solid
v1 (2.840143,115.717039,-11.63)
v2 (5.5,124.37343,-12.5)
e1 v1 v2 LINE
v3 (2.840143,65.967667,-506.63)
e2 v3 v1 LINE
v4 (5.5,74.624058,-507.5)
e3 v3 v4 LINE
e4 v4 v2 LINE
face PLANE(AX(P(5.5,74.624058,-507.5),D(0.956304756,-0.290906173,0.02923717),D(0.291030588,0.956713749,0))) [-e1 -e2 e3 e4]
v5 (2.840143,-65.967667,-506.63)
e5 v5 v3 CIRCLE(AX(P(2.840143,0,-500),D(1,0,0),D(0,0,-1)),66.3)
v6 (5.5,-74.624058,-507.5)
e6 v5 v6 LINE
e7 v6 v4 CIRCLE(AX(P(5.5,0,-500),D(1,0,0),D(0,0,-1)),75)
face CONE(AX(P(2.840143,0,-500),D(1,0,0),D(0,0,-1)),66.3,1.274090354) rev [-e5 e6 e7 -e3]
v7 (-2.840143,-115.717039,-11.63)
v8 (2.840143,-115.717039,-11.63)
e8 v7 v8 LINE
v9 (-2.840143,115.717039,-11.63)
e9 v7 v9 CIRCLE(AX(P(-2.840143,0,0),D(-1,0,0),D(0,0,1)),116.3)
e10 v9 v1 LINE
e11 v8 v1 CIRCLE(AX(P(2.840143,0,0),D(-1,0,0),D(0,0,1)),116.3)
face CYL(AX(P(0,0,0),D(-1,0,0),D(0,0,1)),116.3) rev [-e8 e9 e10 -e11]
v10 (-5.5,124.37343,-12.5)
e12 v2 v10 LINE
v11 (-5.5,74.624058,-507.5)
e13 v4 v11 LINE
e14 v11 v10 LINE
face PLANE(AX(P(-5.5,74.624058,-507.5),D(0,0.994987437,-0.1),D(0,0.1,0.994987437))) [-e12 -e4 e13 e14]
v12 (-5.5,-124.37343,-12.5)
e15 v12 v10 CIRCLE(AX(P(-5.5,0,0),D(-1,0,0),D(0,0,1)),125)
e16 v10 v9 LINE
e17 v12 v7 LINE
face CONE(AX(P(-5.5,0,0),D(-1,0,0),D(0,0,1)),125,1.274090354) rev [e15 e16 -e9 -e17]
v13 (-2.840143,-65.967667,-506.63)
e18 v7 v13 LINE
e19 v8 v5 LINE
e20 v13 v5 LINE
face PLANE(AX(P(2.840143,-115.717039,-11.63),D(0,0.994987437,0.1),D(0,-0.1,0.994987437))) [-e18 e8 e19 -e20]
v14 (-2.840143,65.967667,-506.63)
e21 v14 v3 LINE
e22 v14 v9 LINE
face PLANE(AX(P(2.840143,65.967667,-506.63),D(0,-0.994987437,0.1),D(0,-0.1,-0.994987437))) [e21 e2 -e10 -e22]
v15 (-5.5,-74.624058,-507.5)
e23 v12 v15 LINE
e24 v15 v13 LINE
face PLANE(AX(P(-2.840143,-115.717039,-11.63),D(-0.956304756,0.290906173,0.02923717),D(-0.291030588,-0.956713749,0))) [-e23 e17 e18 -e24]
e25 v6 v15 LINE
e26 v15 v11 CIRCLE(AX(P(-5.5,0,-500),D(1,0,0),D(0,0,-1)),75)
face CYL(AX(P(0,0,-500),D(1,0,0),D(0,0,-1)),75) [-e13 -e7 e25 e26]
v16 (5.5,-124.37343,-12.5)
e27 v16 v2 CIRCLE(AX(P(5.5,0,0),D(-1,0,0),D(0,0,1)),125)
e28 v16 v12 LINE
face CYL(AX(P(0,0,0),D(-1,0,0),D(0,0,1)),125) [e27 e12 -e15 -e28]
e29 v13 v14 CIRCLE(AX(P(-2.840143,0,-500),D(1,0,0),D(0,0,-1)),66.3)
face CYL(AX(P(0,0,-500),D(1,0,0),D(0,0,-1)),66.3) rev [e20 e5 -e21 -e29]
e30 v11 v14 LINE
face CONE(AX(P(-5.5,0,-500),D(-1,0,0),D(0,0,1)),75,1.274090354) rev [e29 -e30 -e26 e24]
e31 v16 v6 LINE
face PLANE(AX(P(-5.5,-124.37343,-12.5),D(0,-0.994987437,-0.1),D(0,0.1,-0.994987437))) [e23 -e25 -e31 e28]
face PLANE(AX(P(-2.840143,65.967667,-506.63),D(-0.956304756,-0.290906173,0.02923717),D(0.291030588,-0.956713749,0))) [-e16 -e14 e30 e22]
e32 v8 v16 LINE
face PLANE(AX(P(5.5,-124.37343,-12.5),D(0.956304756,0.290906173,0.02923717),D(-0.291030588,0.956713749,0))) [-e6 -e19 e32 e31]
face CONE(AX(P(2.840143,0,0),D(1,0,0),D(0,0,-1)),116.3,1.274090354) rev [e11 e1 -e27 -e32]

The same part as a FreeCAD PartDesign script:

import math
import FreeCAD as App
import Part
import Sketcher
from FreeCAD import Vector
Q = App.Units.Quantity


def add_polygon(sketch, points):
    """Adds a closed chain of lines whose ends are joined by coincident constraints."""
    first, n = sketch.GeometryCount, len(points)
    for a, b in zip(points, points[1:] + points[:1]):
        sketch.addGeometry(Part.LineSegment(App.Vector(*a, 0), App.Vector(*b, 0)), False)
    for i in range(n):
        sketch.addConstraint(Sketcher.Constraint("Coincident", first + i, 2, first + (i + 1) % n, 1))

doc = App.newDocument("Part")
body = doc.addObject("PartDesign::Body", "Body")

# Sketch on XY plane
sketch1 = body.newObject("Sketcher::SketchObject", "Sketch")
sketch1.AttachmentSupport = (doc.getObject("XY_Plane"), [""])
sketch1.MapMode = "FlatFace"
add_polygon(sketch1, [(6, 125), (-6, 125), (-3, 116), (3, 116)])  # lines 0-3
sketch1.addConstraint(Sketcher.Constraint("Horizontal", 0))
sketch1.addConstraint(Sketcher.Constraint("Horizontal", 2))
sketch1.addConstraint(Sketcher.Constraint("Equal", 1, 3))
sketch1.addConstraint(Sketcher.Constraint("DistanceX", 0, 2, 0, 1, Q("11 mm")))
sketch1.addConstraint(Sketcher.Constraint("Angle", 1, Q("-73 deg")))
sketch1.addConstraint(Sketcher.Constraint("DistanceY", -1, 1, 0, 2, Q("125 mm")))
sketch1.addConstraint(Sketcher.Constraint("DistanceX", 0, 2, -1, 1, Q("5.5 mm")))
sketch1.addConstraint(Sketcher.Constraint("DistanceY", -1, 1, 1, 2, Q("116.3 mm")))

# Sketch on YZ plane
sketch2 = body.newObject("Sketcher::SketchObject", "Sketch001")
sketch2.AttachmentSupport = (doc.getObject("YZ_Plane"), [""])
sketch2.MapMode = "FlatFace"
sketch2.addGeometry(Part.LineSegment(Vector(124, -12, 0), Vector(75, -508, 0)), False)
sketch2.addGeometry(Part.ArcOfCircle(Part.Circle(Vector(0, -500, 0), Vector(0, 0, 1), 75), math.radians(-174), math.radians(-6)), False)
sketch2.addGeometry(Part.LineSegment(Vector(-75, -508, 0), Vector(-124, -12, 0)), False)
sketch2.addGeometry(Part.ArcOfCircle(Part.Circle(Vector(0, 0, 0), Vector(0, 0, 1), 125), math.radians(-6), math.radians(186)), False)
sketch2.addConstraint(Sketcher.Constraint("Tangent", 0, 2, 1, 2))
sketch2.addConstraint(Sketcher.Constraint("Tangent", 1, 1, 2, 1))
sketch2.addConstraint(Sketcher.Constraint("Tangent", 2, 2, 3, 2))
sketch2.addConstraint(Sketcher.Constraint("Tangent", 3, 1, 0, 1))
sketch2.addConstraint(Sketcher.Constraint("Coincident", 3, 3, -1, 1))
sketch2.addConstraint(Sketcher.Constraint("PointOnObject", 1, 3, -2))
sketch2.addConstraint(Sketcher.Constraint("Radius", 1, Q("75 mm")))
sketch2.addConstraint(Sketcher.Constraint("Radius", 3, Q("125 mm")))
sketch2.addConstraint(Sketcher.Constraint("DistanceY", 1, 3, -1, 1, Q("500 mm")))
doc.recompute()

additivepipe = body.newObject("PartDesign::AdditivePipe", "AdditivePipe")
additivepipe.Profile = sketch1
additivepipe.Spine = (sketch2, ["Edge1", "Edge2", "Edge3", "Edge4"])

doc.recompute()
